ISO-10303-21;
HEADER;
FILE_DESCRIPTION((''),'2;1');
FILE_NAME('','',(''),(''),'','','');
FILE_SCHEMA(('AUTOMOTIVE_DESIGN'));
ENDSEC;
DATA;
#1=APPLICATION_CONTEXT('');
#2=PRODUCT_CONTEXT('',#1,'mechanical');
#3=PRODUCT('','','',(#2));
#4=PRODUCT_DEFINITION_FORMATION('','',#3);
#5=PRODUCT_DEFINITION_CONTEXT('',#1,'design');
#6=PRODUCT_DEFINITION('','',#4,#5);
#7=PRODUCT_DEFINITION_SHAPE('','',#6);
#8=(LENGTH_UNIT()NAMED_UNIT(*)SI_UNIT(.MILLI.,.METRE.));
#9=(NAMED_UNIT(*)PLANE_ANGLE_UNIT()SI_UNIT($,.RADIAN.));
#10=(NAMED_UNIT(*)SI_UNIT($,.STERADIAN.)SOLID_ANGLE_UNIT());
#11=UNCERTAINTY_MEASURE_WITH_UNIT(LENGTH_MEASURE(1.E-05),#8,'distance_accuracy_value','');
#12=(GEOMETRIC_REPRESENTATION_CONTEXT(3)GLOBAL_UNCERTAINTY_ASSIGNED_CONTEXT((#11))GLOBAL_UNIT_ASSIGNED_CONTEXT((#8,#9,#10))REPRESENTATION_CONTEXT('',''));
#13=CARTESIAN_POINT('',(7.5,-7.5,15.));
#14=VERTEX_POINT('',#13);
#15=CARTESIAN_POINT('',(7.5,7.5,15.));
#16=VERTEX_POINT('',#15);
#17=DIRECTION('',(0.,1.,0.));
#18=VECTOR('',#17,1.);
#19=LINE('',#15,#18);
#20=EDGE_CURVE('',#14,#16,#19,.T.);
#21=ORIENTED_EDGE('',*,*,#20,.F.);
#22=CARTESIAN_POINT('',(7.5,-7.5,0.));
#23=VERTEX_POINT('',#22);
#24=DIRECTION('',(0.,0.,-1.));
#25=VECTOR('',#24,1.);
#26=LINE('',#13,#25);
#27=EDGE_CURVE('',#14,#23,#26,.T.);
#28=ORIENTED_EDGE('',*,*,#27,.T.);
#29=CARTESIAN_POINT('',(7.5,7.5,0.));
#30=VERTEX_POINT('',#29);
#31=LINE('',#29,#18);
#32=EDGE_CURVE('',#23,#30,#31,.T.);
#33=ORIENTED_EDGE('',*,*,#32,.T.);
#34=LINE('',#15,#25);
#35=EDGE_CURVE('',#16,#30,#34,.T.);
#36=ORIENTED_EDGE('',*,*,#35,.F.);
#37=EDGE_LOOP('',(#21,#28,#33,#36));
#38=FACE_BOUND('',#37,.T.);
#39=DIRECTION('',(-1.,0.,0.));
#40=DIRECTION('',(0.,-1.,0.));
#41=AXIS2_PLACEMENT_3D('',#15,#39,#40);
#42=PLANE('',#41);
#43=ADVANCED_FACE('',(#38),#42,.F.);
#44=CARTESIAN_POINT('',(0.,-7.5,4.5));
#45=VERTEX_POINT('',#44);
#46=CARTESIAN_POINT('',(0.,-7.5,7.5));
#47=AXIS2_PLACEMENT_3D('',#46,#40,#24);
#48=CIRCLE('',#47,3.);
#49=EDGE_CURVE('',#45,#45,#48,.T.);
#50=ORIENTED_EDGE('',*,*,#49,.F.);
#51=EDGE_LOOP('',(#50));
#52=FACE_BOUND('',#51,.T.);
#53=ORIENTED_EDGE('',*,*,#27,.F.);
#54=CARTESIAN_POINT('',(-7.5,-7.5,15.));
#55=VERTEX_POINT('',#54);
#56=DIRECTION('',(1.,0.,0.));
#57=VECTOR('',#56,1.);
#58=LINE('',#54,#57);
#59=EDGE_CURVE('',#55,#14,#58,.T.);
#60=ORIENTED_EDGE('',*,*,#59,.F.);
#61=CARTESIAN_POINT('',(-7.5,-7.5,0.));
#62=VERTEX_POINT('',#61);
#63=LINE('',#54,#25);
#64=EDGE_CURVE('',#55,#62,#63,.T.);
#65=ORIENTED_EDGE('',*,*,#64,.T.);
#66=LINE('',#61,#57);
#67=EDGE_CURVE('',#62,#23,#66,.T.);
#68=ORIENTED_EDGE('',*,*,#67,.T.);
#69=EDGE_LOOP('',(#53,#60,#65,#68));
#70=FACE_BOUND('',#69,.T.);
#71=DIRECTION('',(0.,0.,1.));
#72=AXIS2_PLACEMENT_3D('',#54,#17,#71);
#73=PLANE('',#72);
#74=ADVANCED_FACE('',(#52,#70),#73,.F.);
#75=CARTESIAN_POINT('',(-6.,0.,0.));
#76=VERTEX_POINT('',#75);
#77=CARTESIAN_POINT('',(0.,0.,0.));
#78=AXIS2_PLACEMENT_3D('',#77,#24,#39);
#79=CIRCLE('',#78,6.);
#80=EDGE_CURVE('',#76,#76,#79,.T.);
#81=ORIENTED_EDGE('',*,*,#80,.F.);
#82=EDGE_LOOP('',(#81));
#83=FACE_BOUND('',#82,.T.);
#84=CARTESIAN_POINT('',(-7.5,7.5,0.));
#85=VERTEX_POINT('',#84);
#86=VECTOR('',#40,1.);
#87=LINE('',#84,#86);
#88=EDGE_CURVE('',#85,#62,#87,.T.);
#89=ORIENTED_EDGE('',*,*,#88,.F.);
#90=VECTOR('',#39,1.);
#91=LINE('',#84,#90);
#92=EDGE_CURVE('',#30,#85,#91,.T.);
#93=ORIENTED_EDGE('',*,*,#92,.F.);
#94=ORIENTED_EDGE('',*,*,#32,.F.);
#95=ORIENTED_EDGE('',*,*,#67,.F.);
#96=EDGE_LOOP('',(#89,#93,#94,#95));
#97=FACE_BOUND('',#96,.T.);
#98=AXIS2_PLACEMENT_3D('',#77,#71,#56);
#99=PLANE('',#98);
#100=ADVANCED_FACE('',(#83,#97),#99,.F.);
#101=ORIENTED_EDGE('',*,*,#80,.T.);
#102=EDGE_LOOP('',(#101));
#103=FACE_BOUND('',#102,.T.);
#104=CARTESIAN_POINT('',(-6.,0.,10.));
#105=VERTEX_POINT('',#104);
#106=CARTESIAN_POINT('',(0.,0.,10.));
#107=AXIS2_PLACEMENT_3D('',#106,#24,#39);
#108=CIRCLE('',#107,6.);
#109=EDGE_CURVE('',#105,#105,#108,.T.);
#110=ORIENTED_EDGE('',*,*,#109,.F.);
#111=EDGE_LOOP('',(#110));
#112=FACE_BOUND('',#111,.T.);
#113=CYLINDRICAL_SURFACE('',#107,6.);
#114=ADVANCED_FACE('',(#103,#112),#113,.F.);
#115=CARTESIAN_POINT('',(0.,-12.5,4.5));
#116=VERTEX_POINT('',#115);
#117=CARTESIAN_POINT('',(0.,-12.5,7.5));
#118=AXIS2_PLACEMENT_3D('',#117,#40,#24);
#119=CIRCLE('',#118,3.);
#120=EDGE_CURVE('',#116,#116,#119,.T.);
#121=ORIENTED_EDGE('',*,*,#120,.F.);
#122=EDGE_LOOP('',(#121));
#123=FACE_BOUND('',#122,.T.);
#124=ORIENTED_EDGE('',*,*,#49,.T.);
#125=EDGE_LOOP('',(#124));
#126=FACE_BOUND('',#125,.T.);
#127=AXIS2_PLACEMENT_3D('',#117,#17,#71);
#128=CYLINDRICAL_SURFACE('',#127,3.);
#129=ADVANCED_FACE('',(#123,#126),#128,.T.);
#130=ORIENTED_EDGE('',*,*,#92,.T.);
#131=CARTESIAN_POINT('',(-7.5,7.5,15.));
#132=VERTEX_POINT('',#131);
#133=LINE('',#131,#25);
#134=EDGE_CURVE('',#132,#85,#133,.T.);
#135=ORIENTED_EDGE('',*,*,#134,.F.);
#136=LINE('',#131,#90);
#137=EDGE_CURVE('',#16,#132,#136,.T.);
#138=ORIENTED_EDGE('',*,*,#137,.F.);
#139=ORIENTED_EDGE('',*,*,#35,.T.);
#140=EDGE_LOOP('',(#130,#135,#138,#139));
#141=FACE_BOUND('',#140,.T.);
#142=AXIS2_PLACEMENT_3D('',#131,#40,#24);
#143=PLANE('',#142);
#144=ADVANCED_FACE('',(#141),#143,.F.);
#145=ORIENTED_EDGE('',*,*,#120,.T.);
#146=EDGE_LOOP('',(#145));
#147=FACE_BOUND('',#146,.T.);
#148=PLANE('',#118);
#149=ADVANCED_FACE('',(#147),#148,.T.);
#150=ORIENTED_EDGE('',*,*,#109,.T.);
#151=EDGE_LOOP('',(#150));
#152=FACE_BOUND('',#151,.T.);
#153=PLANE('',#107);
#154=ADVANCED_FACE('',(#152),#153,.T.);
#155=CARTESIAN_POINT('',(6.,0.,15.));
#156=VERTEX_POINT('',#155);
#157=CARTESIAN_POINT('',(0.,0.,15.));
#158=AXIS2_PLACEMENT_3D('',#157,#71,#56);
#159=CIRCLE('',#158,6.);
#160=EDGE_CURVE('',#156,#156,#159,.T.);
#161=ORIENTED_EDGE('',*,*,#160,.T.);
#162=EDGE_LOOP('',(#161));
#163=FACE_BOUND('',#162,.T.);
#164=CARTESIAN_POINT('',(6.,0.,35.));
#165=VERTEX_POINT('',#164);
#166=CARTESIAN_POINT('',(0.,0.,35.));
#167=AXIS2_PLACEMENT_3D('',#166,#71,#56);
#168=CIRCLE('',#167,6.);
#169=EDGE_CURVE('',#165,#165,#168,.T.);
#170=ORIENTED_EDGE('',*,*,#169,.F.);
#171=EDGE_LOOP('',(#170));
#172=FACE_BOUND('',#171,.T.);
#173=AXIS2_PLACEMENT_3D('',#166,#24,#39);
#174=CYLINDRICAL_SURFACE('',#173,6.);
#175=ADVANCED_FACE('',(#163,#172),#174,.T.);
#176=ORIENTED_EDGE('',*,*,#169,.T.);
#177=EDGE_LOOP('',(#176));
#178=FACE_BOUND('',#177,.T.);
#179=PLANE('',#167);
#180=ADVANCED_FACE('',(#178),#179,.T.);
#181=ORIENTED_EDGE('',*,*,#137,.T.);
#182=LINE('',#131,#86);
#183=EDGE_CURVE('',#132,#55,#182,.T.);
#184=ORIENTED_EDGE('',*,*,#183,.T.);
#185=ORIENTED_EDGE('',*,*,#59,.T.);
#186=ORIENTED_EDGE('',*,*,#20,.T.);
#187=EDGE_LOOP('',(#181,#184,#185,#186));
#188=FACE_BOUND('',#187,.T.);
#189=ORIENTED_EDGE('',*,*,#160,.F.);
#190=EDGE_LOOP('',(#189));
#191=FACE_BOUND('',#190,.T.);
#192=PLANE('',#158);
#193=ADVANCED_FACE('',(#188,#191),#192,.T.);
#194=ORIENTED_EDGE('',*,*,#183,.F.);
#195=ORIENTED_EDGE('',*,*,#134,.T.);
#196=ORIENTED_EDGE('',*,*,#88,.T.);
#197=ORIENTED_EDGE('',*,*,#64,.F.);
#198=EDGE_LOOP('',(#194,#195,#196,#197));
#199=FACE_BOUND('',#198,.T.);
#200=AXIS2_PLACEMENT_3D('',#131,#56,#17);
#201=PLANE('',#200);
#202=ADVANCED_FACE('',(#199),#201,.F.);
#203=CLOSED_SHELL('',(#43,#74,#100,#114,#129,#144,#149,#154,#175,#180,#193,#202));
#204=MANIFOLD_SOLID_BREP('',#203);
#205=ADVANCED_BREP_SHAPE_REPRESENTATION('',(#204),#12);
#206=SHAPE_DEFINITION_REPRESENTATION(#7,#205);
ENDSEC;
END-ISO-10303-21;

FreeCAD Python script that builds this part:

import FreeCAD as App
import Part
import Sketcher

doc = App.newDocument("Part")
body = doc.addObject("PartDesign::Body", "Body")

# Sketch on XY plane
sketch1 = body.newObject("Sketcher::SketchObject", "Sketch")
sketch1.AttachmentSupport = (doc.getObject("XY_Plane"), [""])
sketch1.MapMode = "FlatFace"
sketch1.addGeometry(Part.LineSegment(App.Vector(-8, 8, 0), App.Vector(-8, -8, 0)), False)
sketch1.addGeometry(Part.LineSegment(App.Vector(-8, -8, 0), App.Vector(8, -8, 0)), False)
sketch1.addGeometry(Part.LineSegment(App.Vector(8, -8, 0), App.Vector(8, 8, 0)), False)
sketch1.addGeometry(Part.LineSegment(App.Vector(8, 8, 0), App.Vector(-8, 8, 0)), False)
sketch1.addConstraint(Sketcher.Constraint("Coincident", 0, 2, 1, 1))
sketch1.addConstraint(Sketcher.Constraint("Coincident", 1, 2, 2, 1))
sketch1.addConstraint(Sketcher.Constraint("Coincident", 2, 2, 3, 1))
sketch1.addConstraint(Sketcher.Constraint("Coincident", 3, 2, 0, 1))
sketch1.addConstraint(Sketcher.Constraint("Vertical", 0))
sketch1.addConstraint(Sketcher.Constraint("Horizontal", 1))
sketch1.addConstraint(Sketcher.Constraint("Vertical", 2))
sketch1.addConstraint(Sketcher.Constraint("Horizontal", 3))
sketch1.addConstraint(Sketcher.Constraint("Symmetric", 0, 2, 2, 2, -1, 1))
sketch1.addConstraint(Sketcher.Constraint("Equal", 3, 0))
sketch1.addConstraint(Sketcher.Constraint("DistanceX", 1, 1, 1, 2, 15.0))
pad1 = body.newObject("PartDesign::Pad", "Pad")
pad1.Profile = sketch1
pad1.Length = 15

# Sketch on XY plane
sketch2 = body.newObject("Sketcher::SketchObject", "Sketch001")
sketch2.AttachmentSupport = (doc.getObject("XY_Plane"), [""])
sketch2.MapMode = "FlatFace"
sketch2.AttachmentOffset = App.Placement(App.Vector(0, 0, 15), App.Rotation())
sketch2.addGeometry(Part.Circle(App.Vector(0, 0, 0), App.Vector(0, 0, 1), 6), False)
sketch2.addConstraint(Sketcher.Constraint("Coincident", 0, 3, -1, 1))
sketch2.addConstraint(Sketcher.Constraint("Diameter", 0, 12.0))
pad2 = body.newObject("PartDesign::Pad", "Pad001")
pad2.Profile = sketch2
pad2.Length = 20

# Sketch on XY plane
sketch3 = body.newObject("Sketcher::SketchObject", "Sketch002")
sketch3.AttachmentSupport = (doc.getObject("XY_Plane"), [""])
sketch3.MapMode = "FlatFace"
sketch3.addGeometry(Part.Circle(App.Vector(0, 0, 0), App.Vector(0, 0, 1), 6), False)
sketch3.addConstraint(Sketcher.Constraint("Coincident", 0, 3, -1, 1))
sketch3.addConstraint(Sketcher.Constraint("Diameter", 0, 12.0))
pocket1 = body.newObject("PartDesign::Pocket", "Pocket")
pocket1.Profile = sketch3
pocket1.Length = 10
pocket1.Reversed = True

# Sketch on XZ plane
sketch4 = body.newObject("Sketcher::SketchObject", "Sketch003")
sketch4.AttachmentSupport = (doc.getObject("XZ_Plane"), [""])
sketch4.MapMode = "FlatFace"
sketch4.AttachmentOffset = App.Placement(App.Vector(0, 0, 7.5), App.Rotation())
sketch4.addGeometry(Part.Circle(App.Vector(0, 7.5, 0), App.Vector(0, 0, 1), 3), False)
sketch4.addConstraint(Sketcher.Constraint("PointOnObject", 0, 3, -2))
sketch4.addConstraint(Sketcher.Constraint("Diameter", 0, 6.0))
sketch4.addConstraint(Sketcher.Constraint("DistanceY", -1, 1, 0, 3, 7.5))
pad3 = body.newObject("PartDesign::Pad", "Pad002")
pad3.Profile = sketch4
pad3.Length = 5

doc.recompute()
